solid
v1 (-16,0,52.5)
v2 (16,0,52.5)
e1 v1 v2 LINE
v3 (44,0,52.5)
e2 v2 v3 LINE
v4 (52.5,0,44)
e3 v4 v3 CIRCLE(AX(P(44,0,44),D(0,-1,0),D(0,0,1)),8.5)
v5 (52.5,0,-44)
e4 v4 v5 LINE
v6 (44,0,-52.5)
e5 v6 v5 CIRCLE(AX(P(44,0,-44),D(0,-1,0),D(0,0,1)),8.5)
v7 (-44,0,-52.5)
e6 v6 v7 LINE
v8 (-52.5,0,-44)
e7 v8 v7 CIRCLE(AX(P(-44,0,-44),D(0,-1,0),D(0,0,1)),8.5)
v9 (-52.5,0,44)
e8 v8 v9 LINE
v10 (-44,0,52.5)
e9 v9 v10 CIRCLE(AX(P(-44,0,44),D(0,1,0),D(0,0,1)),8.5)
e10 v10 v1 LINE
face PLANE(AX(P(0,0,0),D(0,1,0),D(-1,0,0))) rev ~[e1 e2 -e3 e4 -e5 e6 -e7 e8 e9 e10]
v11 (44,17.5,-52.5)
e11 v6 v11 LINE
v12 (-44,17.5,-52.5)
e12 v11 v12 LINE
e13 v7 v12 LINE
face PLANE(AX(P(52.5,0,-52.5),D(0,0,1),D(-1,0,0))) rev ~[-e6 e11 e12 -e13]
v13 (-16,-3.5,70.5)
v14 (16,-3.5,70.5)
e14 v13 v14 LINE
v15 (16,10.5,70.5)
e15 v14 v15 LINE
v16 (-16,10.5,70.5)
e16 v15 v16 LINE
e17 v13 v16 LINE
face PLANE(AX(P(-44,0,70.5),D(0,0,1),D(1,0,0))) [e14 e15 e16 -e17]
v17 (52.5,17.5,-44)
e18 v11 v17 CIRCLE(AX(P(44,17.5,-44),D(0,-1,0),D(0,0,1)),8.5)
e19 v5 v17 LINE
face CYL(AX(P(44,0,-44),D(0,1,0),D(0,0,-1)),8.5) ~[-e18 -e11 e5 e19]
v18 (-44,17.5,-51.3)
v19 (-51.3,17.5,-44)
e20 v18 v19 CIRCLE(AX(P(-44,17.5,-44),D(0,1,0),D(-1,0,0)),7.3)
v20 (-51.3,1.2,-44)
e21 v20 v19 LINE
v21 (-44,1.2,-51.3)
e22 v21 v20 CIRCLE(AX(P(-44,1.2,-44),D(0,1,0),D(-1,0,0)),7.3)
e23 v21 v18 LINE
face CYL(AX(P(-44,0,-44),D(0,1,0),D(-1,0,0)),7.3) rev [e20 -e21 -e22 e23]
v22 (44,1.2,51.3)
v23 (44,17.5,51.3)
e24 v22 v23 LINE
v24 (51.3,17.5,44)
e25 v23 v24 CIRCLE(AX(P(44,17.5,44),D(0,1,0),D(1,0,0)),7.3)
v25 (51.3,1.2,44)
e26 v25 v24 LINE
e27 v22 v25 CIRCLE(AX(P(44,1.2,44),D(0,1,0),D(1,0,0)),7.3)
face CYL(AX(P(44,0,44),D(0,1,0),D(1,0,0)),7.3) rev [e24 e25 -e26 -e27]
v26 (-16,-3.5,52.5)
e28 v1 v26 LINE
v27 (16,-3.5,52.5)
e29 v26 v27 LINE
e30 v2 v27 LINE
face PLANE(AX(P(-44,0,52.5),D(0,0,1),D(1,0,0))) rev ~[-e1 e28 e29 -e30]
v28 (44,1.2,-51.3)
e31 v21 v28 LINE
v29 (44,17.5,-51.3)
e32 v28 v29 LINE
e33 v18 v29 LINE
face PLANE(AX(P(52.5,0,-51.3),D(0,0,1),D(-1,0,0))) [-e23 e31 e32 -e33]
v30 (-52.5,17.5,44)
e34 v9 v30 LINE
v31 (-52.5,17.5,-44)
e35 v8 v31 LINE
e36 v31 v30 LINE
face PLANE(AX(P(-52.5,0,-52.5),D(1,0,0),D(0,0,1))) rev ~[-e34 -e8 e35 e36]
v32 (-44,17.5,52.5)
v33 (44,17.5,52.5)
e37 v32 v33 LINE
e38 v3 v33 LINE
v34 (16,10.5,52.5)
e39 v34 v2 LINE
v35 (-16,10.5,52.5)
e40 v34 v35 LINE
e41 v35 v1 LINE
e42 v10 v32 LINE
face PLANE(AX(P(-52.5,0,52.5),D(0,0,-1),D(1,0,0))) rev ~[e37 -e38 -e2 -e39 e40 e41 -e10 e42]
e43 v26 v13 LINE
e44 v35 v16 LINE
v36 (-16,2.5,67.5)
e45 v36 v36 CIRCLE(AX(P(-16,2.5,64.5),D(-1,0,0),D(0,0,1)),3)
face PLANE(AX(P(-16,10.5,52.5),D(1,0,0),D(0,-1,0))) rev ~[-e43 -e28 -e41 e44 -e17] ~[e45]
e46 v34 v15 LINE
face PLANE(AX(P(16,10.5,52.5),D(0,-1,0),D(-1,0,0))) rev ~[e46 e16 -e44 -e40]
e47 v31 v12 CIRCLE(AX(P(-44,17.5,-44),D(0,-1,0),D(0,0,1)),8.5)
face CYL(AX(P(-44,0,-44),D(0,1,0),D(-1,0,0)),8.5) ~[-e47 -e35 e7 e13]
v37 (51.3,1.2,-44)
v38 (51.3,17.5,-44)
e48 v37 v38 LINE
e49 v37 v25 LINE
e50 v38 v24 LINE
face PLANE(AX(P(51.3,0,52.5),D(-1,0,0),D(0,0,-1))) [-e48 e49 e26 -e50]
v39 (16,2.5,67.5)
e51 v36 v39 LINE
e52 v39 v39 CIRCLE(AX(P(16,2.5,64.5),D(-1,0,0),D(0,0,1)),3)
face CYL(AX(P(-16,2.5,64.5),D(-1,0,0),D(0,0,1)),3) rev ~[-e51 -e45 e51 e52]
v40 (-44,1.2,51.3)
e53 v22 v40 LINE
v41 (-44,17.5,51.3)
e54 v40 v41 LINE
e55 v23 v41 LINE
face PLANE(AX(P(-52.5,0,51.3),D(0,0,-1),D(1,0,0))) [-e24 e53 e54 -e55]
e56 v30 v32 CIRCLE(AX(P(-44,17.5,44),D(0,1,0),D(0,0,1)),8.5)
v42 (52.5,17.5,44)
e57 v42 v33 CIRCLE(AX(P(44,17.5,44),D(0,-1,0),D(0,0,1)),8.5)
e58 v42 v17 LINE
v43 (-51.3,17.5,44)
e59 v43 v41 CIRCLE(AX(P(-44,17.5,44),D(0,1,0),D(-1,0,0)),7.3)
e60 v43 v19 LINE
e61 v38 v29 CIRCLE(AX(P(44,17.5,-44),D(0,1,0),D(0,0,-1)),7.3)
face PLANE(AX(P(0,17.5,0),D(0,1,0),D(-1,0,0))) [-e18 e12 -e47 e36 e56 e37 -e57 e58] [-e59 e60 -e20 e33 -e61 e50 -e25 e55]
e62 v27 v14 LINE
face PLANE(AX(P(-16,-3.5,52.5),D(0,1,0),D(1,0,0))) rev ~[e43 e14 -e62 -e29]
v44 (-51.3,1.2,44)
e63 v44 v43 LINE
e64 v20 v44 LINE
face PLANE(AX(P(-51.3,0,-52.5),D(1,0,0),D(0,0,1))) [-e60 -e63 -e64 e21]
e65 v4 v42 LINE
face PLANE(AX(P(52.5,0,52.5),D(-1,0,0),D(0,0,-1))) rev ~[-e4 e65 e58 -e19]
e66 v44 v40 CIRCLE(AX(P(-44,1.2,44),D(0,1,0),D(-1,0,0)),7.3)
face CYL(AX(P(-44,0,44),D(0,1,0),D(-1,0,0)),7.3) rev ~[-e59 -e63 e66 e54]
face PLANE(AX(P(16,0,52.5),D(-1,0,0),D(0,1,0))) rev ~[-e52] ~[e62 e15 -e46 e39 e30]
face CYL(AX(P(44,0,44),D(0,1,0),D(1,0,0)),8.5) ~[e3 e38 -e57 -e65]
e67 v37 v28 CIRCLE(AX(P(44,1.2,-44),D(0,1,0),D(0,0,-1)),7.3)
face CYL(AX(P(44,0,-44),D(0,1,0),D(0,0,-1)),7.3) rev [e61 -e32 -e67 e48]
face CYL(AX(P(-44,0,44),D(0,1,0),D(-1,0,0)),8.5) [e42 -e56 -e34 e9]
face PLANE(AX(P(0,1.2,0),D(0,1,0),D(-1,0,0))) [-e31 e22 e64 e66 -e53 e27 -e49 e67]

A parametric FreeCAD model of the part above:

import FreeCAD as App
import Part
import Sketcher
from FreeCAD import Vector
Q = App.Units.Quantity


def edges_at(feature, points):
    """Names of the edges that pass closest to the given points."""
    edges = feature.Shape.Edges
    near = lambda p: min(range(len(edges)), key=lambda i: edges[i].distToShape(Part.Vertex(*p))[0])
    return sorted({f"Edge{near(p) + 1}" for p in points})


def faces_at(feature, points):
    """Names of the faces that lie closest to the given points."""
    faces = feature.Shape.Faces
    near = lambda p: min(range(len(faces)), key=lambda i: faces[i].distToShape(Part.Vertex(*p))[0])
    return sorted({f"Face{near(p) + 1}" for p in points})

doc = App.newDocument("Part")
body = doc.addObject("PartDesign::Body", "Body")

# Sketch on XZ plane
sketch1 = body.newObject("Sketcher::SketchObject", "Sketch")
sketch1.AttachmentSupport = (doc.getObject("XZ_Plane"), [""])
sketch1.MapMode = "FlatFace"
sketch1.addGeometry([
    Part.LineSegment(Vector(-52, -52, 0), Vector(-52, 52, 0)),
    Part.LineSegment(Vector(-52, 52, 0), Vector(52, 52, 0)),
    Part.LineSegment(Vector(52, 52, 0), Vector(52, -52, 0)),
    Part.LineSegment(Vector(52, -52, 0), Vector(-52, -52, 0)),
], False)
sketch1.addConstraint([
    Sketcher.Constraint("Coincident", 0, 2, 1, 1),
    Sketcher.Constraint("Coincident", 1, 2, 2, 1),
    Sketcher.Constraint("Coincident", 2, 2, 3, 1),
    Sketcher.Constraint("Coincident", 3, 2, 0, 1),
    Sketcher.Constraint("Vertical", 0),
    Sketcher.Constraint("Horizontal", 1),
    Sketcher.Constraint("Vertical", 2),
    Sketcher.Constraint("Horizontal", 3),
    Sketcher.Constraint("Symmetric", 0, 2, 2, 2, -1, 1),
    Sketcher.Constraint("Equal", 3, 0),
    Sketcher.Constraint("DistanceX", 1, 1, 1, 2, Q("105 mm")),
])
pad1 = body.newObject("PartDesign::Pad", "Pad")
pad1.Profile = sketch1
pad1.Length = 17.5
pad1.Reversed = True
doc.recompute()

fillet = body.newObject("PartDesign::Fillet", "Fillet")
fillet.Base = (pad1, edges_at(pad1, [
    (52.5, 8.75, 52.5),
    (-52.5, 8.75, 52.5),
    (52.5, 8.75, -52.5),
    (-52.5, 8.75, -52.5),
]))
fillet.Radius = 8.5
doc.recompute()

thickness = body.newObject("PartDesign::Thickness", "Thickness")
thickness.Base = (fillet, faces_at(fillet, [(-20.333, 17.5, -17.5)]))
thickness.Value = 1.2
thickness.Reversed = True
thickness.Join = "Intersection"

# Sketch on XY plane
sketch2 = body.newObject("Sketcher::SketchObject", "Sketch001")
sketch2.AttachmentSupport = (doc.getObject("XY_Plane"), [""])
sketch2.MapMode = "FlatFace"
sketch2.AttachmentOffset = App.Placement(Vector(0, 0, 52.5), App.Rotation())
sketch2.addGeometry([
    Part.LineSegment(Vector(-16, 10, 0), Vector(-16, -4, 0)),
    Part.LineSegment(Vector(-16, -4, 0), Vector(16, -4, 0)),
    Part.LineSegment(Vector(16, -4, 0), Vector(16, 10, 0)),
    Part.LineSegment(Vector(16, 10, 0), Vector(-16, 10, 0)),
], False)
sketch2.addConstraint([
    Sketcher.Constraint("Coincident", 0, 2, 1, 1),
    Sketcher.Constraint("Coincident", 1, 2, 2, 1),
    Sketcher.Constraint("Coincident", 2, 2, 3, 1),
    Sketcher.Constraint("Coincident", 3, 2, 0, 1),
    Sketcher.Constraint("Vertical", 0),
    Sketcher.Constraint("Horizontal", 1),
    Sketcher.Constraint("Vertical", 2),
    Sketcher.Constraint("Horizontal", 3),
    Sketcher.Constraint("DistanceX", 1, 1, 1, 2, Q("32 mm")),
    Sketcher.Constraint("DistanceY", 0, 2, 0, 1, Q("14 mm")),
    Sketcher.Constraint("DistanceX", 0, 2, -1, 1, Q("16 mm")),
    Sketcher.Constraint("DistanceY", 0, 2, -1, 1, Q("3.5 mm")),
])
pad2 = body.newObject("PartDesign::Pad", "Pad001")
pad2.Profile = sketch2
pad2.Length = 18

# Sketch on YZ plane
sketch3 = body.newObject("Sketcher::SketchObject", "Sketch002")
sketch3.AttachmentSupport = (doc.getObject("YZ_Plane"), [""])
sketch3.MapMode = "FlatFace"
sketch3.AttachmentOffset = App.Placement(Vector(0, 0, -16), App.Rotation())
sketch3.addGeometry(Part.Circle(Vector(2.5, 64.5, 0), Vector(0, 0, 1), 3), False)
sketch3.addConstraint([
    Sketcher.Constraint("Diameter", 0, Q("6 mm")),
    Sketcher.Constraint("DistanceX", -1, 1, 0, 3, Q("2.5 mm")),
    Sketcher.Constraint("DistanceY", -1, 1, 0, 3, Q("64.5 mm")),
])
pocket1 = body.newObject("PartDesign::Pocket", "Pocket")
pocket1.Profile = sketch3
pocket1.Length = 50
pocket1.Reversed = True

doc.recompute()
